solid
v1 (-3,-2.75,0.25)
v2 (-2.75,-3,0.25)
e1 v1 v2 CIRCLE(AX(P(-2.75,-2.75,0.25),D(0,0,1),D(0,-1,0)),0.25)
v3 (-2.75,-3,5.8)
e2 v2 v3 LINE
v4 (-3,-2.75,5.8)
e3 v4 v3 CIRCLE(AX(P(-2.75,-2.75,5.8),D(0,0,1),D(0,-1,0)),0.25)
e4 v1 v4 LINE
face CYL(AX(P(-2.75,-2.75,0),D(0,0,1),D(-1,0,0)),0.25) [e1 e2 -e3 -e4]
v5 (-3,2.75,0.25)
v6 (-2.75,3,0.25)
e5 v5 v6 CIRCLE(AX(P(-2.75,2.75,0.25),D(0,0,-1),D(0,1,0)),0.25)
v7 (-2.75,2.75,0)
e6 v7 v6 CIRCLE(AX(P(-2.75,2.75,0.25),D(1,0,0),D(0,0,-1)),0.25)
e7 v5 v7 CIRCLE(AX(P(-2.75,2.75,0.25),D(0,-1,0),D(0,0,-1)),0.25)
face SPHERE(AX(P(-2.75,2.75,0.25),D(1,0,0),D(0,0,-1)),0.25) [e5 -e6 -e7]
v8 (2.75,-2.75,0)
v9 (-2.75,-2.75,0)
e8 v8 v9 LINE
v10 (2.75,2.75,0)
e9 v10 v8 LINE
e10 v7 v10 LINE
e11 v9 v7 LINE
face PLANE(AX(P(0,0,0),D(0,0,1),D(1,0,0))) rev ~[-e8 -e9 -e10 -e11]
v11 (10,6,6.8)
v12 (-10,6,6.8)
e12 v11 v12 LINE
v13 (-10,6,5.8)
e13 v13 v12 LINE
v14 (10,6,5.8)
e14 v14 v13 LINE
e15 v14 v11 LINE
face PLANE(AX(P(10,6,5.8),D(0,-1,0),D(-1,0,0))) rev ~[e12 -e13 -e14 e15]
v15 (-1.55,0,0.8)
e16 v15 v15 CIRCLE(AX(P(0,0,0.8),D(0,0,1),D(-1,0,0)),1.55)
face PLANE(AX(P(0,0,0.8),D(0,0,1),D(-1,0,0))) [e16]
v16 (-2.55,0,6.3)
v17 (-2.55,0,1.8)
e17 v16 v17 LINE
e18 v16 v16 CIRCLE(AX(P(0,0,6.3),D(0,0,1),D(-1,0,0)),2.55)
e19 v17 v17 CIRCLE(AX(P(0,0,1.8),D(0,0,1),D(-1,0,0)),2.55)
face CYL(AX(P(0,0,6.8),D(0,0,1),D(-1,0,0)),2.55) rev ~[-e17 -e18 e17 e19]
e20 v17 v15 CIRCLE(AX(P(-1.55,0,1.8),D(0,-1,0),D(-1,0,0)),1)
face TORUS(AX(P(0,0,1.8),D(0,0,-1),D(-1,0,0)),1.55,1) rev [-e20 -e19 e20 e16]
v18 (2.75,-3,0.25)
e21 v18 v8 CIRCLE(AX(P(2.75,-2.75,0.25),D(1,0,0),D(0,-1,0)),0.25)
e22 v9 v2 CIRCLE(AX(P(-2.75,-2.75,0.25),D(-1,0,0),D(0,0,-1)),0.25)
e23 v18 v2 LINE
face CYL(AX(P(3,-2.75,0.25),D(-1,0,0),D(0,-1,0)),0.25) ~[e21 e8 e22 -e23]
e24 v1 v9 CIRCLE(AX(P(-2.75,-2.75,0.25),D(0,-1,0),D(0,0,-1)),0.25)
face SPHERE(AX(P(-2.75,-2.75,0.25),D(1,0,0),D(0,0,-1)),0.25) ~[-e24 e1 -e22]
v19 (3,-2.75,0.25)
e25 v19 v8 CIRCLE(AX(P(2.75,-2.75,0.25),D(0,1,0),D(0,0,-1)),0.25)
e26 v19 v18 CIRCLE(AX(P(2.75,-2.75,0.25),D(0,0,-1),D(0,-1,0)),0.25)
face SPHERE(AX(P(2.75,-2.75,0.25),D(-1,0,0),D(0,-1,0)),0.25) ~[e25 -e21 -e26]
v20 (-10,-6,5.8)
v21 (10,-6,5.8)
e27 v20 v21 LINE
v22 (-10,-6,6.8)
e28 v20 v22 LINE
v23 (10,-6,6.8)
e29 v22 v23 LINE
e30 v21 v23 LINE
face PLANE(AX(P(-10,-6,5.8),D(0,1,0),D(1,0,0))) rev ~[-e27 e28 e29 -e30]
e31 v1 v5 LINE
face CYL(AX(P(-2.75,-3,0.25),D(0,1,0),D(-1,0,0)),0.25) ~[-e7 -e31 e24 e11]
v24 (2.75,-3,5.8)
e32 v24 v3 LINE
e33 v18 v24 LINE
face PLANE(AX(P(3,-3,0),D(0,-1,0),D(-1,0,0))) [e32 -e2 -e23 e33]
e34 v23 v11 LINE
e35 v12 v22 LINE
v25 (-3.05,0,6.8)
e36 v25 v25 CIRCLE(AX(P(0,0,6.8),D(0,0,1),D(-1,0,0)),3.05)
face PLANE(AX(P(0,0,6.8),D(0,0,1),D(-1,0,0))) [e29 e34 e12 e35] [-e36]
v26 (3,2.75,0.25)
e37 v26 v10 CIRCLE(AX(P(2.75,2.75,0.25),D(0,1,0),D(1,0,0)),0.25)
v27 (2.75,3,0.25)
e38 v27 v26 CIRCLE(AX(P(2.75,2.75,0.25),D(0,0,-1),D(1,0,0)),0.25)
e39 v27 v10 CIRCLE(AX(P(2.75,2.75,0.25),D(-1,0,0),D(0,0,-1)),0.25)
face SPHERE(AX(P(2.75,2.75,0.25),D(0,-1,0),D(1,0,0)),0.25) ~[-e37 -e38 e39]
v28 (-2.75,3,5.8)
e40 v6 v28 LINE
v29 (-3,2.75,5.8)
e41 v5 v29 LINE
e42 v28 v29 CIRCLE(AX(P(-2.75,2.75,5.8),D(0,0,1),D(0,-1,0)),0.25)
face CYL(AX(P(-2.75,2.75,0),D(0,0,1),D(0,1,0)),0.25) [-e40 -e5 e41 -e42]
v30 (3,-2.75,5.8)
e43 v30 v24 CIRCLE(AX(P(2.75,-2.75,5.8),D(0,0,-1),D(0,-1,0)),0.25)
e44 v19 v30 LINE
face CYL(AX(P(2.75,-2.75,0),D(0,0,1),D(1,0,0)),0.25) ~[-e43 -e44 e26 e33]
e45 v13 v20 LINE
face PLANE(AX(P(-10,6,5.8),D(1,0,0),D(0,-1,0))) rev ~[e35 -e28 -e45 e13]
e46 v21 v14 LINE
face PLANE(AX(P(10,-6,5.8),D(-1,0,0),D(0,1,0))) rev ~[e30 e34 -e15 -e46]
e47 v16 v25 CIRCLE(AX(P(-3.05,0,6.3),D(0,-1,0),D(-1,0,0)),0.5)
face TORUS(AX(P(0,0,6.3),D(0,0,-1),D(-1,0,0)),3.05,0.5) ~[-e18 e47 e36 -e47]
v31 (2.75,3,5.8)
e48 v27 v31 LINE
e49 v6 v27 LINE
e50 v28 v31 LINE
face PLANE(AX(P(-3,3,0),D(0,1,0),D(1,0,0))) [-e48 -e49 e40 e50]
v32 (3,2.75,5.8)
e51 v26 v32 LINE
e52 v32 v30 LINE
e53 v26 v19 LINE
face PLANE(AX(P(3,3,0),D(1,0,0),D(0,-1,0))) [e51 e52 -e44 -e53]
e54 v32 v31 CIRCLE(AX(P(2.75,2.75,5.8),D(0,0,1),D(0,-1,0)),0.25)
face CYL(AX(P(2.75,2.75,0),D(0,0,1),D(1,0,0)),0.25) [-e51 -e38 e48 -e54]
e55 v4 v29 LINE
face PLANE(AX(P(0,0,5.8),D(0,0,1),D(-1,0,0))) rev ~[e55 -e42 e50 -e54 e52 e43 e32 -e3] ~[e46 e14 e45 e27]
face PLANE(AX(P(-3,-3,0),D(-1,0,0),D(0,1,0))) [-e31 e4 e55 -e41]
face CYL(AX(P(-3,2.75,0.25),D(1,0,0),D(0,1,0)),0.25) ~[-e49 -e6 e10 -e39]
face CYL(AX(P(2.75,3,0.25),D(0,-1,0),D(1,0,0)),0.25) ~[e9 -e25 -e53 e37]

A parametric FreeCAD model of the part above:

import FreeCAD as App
import Part
import Sketcher

V = App.Vector


def edges_at(feature, points):
    """Names of the edges that pass closest to the given points."""
    edges = feature.Shape.Edges
    near = lambda p: min(range(len(edges)), key=lambda i: edges[i].distToShape(Part.Vertex(*p))[0])
    return sorted({f"Edge{near(p) + 1}" for p in points})

doc = App.newDocument("Part")
body = doc.addObject("PartDesign::Body", "Body")

sketch1 = body.newObject("Sketcher::SketchObject", "Sketch")
sketch1.AttachmentSupport = (doc.getObject("XY_Plane"), [""])
sketch1.MapMode = "FlatFace"
sketch1.addGeometry([
    Part.LineSegment(V(-3, -3, 0), V(3, -3, 0)),
    Part.LineSegment(V(3, -3, 0), V(3, 3, 0)),
    Part.LineSegment(V(3, 3, 0), V(-3, 3, 0)),
    Part.LineSegment(V(-3, 3, 0), V(-3, -3, 0)),
], False)
sketch1.addConstraint([
    Sketcher.Constraint("Coincident", 0, 2, 1, 1),
    Sketcher.Constraint("Coincident", 1, 2, 2, 1),
    Sketcher.Constraint("Coincident", 2, 2, 3, 1),
    Sketcher.Constraint("Coincident", 3, 2, 0, 1),
    Sketcher.Constraint("Horizontal", 0),
    Sketcher.Constraint("Vertical", 1),
    Sketcher.Constraint("Horizontal", 2),
    Sketcher.Constraint("Vertical", 3),
    Sketcher.Constraint("Symmetric", 0, 2, 2, 2, -1, 1),
    Sketcher.Constraint("Equal", 2, 1),
    Sketcher.Constraint("DistanceX", 0, 1, 0, 2, 6.0),
])
pad1 = body.newObject("PartDesign::Pad", "Pad")
pad1.Profile = sketch1
pad1.Length = 5.8

sketch2 = body.newObject("Sketcher::SketchObject", "Sketch001")
sketch2.AttachmentSupport = (doc.getObject("XY_Plane"), [""])
sketch2.MapMode = "FlatFace"
sketch2.AttachmentOffset = App.Placement(V(0, 0, 5.8), App.Rotation())
sketch2.addGeometry([
    Part.LineSegment(V(-10, 6, 0), V(-10, -6, 0)),
    Part.LineSegment(V(-10, -6, 0), V(10, -6, 0)),
    Part.LineSegment(V(10, -6, 0), V(10, 6, 0)),
    Part.LineSegment(V(10, 6, 0), V(-10, 6, 0)),
], False)
sketch2.addConstraint([
    Sketcher.Constraint("Coincident", 0, 2, 1, 1),
    Sketcher.Constraint("Coincident", 1, 2, 2, 1),
    Sketcher.Constraint("Coincident", 2, 2, 3, 1),
    Sketcher.Constraint("Coincident", 3, 2, 0, 1),
    Sketcher.Constraint("Vertical", 0),
    Sketcher.Constraint("Horizontal", 1),
    Sketcher.Constraint("Vertical", 2),
    Sketcher.Constraint("Horizontal", 3),
    Sketcher.Constraint("Symmetric", 0, 2, 2, 2, -1, 1),
    Sketcher.Constraint("DistanceX", 1, 1, 1, 2, 20.0),
    Sketcher.Constraint("DistanceY", 0, 2, 0, 1, 12.0),
])
pad2 = body.newObject("PartDesign::Pad", "Pad001")
pad2.Profile = sketch2
pad2.Length = 1
doc.recompute()

fillet = body.newObject("PartDesign::Fillet", "Fillet")
fillet.Base = (pad2, edges_at(pad2, [
    (0, -3, 0),
    (3, -3, 2.9),
    (3, 0, 0),
    (3, 3, 2.9),
    (0, 3, 0),
    (-3, 0, 0),
    (-3, -3, 2.9),
    (-3, 3, 2.9),
]))
fillet.Radius = 0.25

sketch3 = body.newObject("Sketcher::SketchObject", "Sketch002")
sketch3.AttachmentSupport = (doc.getObject("XY_Plane"), [""])
sketch3.MapMode = "FlatFace"
sketch3.AttachmentOffset = App.Placement(V(0, 0, 6.8), App.Rotation())
sketch3.addGeometry(Part.Circle(V(0, 0, 0), V(0, 0, 1), 2.55), False)
sketch3.addConstraint([
    Sketcher.Constraint("Coincident", 0, 3, -1, 1),
    Sketcher.Constraint("Diameter", 0, 5.1),
])
pocket1 = body.newObject("PartDesign::Pocket", "Pocket")
pocket1.Profile = sketch3
pocket1.Length = 6
doc.recompute()

fillet2 = body.newObject("PartDesign::Fillet", "Fillet001")
fillet2.Base = (pocket1, edges_at(pocket1, [(2.377, -0.922, 0.8)]))
fillet2.Radius = 1
doc.recompute()

fillet3 = body.newObject("PartDesign::Fillet", "Fillet002")
fillet3.Base = (fillet2, edges_at(fillet2, [(2.377, -0.922, 6.8)]))
fillet3.Radius = 0.5

doc.recompute()
